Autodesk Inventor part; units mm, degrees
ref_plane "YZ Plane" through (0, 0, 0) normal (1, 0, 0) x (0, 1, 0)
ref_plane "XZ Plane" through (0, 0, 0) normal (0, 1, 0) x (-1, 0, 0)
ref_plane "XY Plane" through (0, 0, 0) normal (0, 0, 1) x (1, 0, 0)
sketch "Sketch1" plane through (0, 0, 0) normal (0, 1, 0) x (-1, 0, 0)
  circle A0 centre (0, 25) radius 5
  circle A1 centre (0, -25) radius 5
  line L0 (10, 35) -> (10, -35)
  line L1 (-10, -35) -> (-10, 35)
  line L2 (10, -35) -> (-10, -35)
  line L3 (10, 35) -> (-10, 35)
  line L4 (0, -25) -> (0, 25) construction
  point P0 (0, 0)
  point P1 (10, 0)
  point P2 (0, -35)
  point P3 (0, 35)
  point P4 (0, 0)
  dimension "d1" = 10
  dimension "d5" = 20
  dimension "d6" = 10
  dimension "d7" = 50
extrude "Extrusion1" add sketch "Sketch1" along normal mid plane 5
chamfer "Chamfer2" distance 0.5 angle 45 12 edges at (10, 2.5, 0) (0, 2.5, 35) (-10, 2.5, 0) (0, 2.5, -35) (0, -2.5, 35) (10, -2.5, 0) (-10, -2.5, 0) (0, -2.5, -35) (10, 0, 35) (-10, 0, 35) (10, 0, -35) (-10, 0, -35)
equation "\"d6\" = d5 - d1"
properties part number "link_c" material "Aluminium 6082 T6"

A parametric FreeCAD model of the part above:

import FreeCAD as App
import Part
import Sketcher


def edges_at(feature, points):
    """Names of the edges that pass closest to the given points."""
    edges = feature.Shape.Edges
    near = lambda p: min(range(len(edges)), key=lambda i: edges[i].distToShape(Part.Vertex(*p))[0])
    return sorted({f"Edge{near(p) + 1}" for p in points})


def add_polygon(sketch, points):
    """Adds a closed chain of lines whose ends are joined by coincident constraints."""
    first, n = sketch.GeometryCount, len(points)
    for a, b in zip(points, points[1:] + points[:1]):
        sketch.addGeometry(Part.LineSegment(App.Vector(*a, 0), App.Vector(*b, 0)), False)
    for i in range(n):
        sketch.addConstraint(Sketcher.Constraint("Coincident", first + i, 2, first + (i + 1) % n, 1))

doc = App.newDocument("Part")
body = doc.addObject("PartDesign::Body", "Body")

sketch1 = body.newObject("Sketcher::SketchObject", "Sketch")
sketch1.AttachmentSupport = (doc.getObject("XZ_Plane"), [""])
sketch1.MapMode = "FlatFace"
add_polygon(sketch1, [(-10, -35), (-10, 35), (10, 35), (10, -35)])
sketch1.addGeometry(Part.Circle(App.Vector(0, -25, 0), App.Vector(0, 0, 1), 5), False)
sketch1.addGeometry(Part.Circle(App.Vector(0, 25, 0), App.Vector(0, 0, 1), 5), False)
sketch1.addConstraint([
    Sketcher.Constraint("Vertical", 0),
    Sketcher.Constraint("Horizontal", 1),
    Sketcher.Constraint("Vertical", 2),
    Sketcher.Constraint("Horizontal", 3),
    Sketcher.Constraint("Equal", 4, 5),
    Sketcher.Constraint("Symmetric", 4, 3, 5, 3, -1, 1),
    Sketcher.Constraint("Symmetric", 0, 2, 2, 2, -1, 1),
    Sketcher.Constraint("PointOnObject", 4, 3, -2),
    Sketcher.Constraint("Diameter", 4, 10.0),
    Sketcher.Constraint("DistanceX", 1, 1, 1, 2, 20.0),
    Sketcher.Constraint("DistanceY", 4, 3, 5, 3, 50.0),
    Sketcher.Constraint("DistanceY", 5, 3, 0, 2, 10.0),
])
pad1 = body.newObject("PartDesign::Pad", "Pad")
pad1.Profile = sketch1
pad1.Length = 5
pad1.Midplane = True
doc.recompute()

chamfer = body.newObject("PartDesign::Chamfer", "Chamfer")
chamfer.Base = (pad1, edges_at(pad1, [
    (10, 2.5, 0),
    (0, 2.5, 35),
    (-10, 2.5, 0),
    (0, 2.5, -35),
    (0, -2.5, 35),
    (10, -2.5, 0),
    (-10, -2.5, 0),
    (0, -2.5, -35),
    (10, 0, 35),
    (-10, 0, 35),
    (10, 0, -35),
    (-10, 0, -35),
]))
chamfer.Size = 0.5

doc.recompute()
